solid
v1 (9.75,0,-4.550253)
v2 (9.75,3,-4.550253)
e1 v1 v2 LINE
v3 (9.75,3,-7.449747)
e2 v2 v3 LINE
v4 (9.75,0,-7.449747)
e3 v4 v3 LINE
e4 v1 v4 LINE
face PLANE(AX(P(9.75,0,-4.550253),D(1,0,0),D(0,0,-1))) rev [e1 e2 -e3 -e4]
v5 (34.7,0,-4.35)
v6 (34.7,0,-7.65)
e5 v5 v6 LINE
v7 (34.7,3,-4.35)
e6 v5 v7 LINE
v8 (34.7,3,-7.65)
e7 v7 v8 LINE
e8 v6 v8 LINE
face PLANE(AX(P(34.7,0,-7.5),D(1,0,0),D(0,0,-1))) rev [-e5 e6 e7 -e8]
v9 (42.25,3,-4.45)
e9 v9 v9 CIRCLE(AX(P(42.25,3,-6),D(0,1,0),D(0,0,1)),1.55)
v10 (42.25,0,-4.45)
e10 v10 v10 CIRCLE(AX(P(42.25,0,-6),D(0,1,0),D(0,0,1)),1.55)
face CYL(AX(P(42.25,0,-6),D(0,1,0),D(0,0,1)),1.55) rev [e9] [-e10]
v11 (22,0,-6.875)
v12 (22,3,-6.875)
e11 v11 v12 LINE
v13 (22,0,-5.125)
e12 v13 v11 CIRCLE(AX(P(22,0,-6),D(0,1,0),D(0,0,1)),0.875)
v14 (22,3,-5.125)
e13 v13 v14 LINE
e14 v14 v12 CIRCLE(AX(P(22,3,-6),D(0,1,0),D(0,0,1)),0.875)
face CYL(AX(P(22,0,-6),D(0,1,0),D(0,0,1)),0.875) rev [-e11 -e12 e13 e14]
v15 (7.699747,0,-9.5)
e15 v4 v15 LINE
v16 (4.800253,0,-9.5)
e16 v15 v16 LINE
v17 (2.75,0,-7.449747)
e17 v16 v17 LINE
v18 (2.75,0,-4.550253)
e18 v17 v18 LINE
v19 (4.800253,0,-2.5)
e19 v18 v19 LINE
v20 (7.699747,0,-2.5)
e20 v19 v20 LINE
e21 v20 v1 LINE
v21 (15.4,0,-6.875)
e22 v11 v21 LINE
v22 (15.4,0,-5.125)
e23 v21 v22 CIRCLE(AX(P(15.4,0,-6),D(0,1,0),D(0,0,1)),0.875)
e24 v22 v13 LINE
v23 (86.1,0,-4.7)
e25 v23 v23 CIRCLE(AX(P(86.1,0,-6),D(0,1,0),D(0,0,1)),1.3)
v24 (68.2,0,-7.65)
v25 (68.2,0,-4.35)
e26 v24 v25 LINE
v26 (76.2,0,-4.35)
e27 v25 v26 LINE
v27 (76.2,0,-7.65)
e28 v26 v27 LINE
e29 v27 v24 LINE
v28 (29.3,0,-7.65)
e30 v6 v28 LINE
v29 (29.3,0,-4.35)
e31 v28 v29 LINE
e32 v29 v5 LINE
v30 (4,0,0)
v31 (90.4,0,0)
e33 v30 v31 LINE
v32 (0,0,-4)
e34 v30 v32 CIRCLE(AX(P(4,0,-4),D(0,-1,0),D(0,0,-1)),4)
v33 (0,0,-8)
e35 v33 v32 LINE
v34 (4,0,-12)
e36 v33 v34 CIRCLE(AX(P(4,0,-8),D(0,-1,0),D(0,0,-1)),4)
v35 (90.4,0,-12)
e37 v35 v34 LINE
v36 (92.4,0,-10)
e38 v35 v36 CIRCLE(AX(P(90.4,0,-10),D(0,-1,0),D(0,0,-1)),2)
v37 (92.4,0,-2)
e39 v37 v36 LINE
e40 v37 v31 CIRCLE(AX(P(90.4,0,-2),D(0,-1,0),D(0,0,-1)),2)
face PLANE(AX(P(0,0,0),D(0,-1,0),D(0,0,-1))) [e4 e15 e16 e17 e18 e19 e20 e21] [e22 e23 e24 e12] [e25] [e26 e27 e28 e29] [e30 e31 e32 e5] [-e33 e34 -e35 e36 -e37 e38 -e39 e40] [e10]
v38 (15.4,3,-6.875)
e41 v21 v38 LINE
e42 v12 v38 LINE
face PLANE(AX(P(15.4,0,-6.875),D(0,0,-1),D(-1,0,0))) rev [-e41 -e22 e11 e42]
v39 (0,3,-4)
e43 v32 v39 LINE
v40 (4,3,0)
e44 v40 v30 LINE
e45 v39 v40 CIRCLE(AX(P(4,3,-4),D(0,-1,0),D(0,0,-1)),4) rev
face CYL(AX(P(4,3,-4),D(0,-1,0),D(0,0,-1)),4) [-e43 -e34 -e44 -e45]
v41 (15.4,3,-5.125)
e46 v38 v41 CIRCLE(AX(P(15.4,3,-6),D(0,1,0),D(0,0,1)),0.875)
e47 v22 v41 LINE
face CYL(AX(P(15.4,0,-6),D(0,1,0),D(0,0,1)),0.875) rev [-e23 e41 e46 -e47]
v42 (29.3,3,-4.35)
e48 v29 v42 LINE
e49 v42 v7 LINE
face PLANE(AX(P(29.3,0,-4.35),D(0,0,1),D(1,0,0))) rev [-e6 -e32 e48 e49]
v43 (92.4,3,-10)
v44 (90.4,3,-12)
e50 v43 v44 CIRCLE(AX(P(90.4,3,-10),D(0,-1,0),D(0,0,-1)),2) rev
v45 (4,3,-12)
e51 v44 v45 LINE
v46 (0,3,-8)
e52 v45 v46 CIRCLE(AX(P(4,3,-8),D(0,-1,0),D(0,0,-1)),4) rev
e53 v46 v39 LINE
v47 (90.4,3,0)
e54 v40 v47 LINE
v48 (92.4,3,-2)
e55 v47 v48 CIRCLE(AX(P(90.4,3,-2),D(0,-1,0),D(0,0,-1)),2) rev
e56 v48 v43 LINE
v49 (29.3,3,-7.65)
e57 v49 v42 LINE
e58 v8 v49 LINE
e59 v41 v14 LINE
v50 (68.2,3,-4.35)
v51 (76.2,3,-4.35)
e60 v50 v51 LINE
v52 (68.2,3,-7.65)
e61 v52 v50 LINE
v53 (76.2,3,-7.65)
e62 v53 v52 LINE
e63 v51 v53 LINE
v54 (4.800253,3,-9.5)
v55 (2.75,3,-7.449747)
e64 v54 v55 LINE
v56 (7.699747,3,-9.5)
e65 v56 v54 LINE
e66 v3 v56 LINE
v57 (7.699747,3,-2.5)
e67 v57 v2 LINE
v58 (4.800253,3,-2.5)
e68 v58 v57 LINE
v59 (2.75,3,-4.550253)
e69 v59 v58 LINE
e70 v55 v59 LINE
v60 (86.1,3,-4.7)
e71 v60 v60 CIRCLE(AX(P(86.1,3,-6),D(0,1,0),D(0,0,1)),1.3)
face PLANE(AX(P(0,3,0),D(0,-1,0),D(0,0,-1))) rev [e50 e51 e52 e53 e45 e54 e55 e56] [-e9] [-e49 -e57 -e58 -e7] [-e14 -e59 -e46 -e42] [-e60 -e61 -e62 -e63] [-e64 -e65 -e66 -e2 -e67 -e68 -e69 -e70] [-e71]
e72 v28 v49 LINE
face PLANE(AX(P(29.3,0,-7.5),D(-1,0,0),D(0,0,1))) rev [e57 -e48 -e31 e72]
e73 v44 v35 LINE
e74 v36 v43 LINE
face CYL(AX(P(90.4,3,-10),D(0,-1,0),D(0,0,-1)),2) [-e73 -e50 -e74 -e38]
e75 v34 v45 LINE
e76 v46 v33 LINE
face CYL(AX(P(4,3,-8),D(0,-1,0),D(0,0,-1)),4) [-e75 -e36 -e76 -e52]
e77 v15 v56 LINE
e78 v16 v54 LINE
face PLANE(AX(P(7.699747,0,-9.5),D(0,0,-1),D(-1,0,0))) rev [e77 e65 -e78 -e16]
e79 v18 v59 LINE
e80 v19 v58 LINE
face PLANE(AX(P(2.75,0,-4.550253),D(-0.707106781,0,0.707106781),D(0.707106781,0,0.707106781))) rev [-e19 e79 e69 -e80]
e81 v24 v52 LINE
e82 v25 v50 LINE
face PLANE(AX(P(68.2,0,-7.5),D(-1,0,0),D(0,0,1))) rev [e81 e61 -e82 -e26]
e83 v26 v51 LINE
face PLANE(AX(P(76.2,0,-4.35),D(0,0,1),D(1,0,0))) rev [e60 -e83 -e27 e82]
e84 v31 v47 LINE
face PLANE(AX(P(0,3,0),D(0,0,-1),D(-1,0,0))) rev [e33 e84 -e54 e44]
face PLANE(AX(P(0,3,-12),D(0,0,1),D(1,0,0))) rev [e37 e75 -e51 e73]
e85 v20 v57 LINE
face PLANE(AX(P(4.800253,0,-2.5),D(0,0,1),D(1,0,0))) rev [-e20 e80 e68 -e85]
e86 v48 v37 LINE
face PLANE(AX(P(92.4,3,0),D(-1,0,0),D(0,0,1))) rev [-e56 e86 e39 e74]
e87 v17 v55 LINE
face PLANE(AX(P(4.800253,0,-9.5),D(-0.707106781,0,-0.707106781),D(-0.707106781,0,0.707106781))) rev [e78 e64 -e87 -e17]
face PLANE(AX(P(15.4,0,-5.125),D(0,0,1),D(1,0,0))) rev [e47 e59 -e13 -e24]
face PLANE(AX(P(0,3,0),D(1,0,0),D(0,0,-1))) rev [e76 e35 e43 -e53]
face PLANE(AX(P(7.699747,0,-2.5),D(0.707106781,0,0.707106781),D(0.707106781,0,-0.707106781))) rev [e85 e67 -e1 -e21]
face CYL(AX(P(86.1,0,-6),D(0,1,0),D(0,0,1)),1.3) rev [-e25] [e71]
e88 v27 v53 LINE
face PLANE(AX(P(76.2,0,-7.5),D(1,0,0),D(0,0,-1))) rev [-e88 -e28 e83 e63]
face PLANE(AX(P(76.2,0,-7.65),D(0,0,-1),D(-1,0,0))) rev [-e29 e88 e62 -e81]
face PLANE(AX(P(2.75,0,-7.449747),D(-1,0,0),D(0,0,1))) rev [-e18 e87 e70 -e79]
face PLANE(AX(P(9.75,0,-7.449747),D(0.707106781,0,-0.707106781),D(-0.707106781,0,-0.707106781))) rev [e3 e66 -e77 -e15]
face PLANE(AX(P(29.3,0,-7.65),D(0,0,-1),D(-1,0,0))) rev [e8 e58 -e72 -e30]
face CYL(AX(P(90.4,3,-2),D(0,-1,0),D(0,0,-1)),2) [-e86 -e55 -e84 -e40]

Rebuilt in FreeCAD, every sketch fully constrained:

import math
import FreeCAD as App
import Part
import Sketcher
from FreeCAD import Vector
Q = App.Units.Quantity


def edges_at(feature, points):
    """Names of the edges that pass closest to the given points."""
    edges = feature.Shape.Edges
    near = lambda p: min(range(len(edges)), key=lambda i: edges[i].distToShape(Part.Vertex(*p))[0])
    return sorted({f"Edge{near(p) + 1}" for p in points})

doc = App.newDocument("Part")
body = doc.addObject("PartDesign::Body", "Body")

# Sketch on XZ plane
sketch1 = body.newObject("Sketcher::SketchObject", "Sketch")
sketch1.AttachmentSupport = (doc.getObject("XZ_Plane"), [""])
sketch1.MapMode = "FlatFace"
sketch1.addGeometry(Part.LineSegment(Vector(0, -12, 0), Vector(0, 0, 0)), False)
sketch1.addGeometry(Part.LineSegment(Vector(0, 0, 0), Vector(92, 0, 0)), False)
sketch1.addGeometry(Part.LineSegment(Vector(92, 0, 0), Vector(92, -12, 0)), False)
sketch1.addGeometry(Part.LineSegment(Vector(92, -12, 0), Vector(0, -12, 0)), False)
sketch1.addConstraint(Sketcher.Constraint("Coincident", 0, 2, 1, 1))
sketch1.addConstraint(Sketcher.Constraint("Coincident", 1, 2, 2, 1))
sketch1.addConstraint(Sketcher.Constraint("Coincident", 2, 2, 3, 1))
sketch1.addConstraint(Sketcher.Constraint("Coincident", 3, 2, 0, 1))
sketch1.addConstraint(Sketcher.Constraint("Vertical", 0))
sketch1.addConstraint(Sketcher.Constraint("Horizontal", 1))
sketch1.addConstraint(Sketcher.Constraint("Vertical", 2))
sketch1.addConstraint(Sketcher.Constraint("Horizontal", 3))
sketch1.addConstraint(Sketcher.Constraint("Coincident", 0, 2, -1, 1))
sketch1.addConstraint(Sketcher.Constraint("DistanceY", 0, 1, 0, 2, Q("12 mm")))
sketch1.addConstraint(Sketcher.Constraint("DistanceX", 1, 1, 1, 2, Q("92.4 mm")))
pad1 = body.newObject("PartDesign::Pad", "Pad")
pad1.Profile = sketch1
pad1.Length = 3
pad1.Reversed = True
doc.recompute()

fillet = body.newObject("PartDesign::Fillet", "Fillet")
fillet.Base = (pad1, edges_at(pad1, [(0, 1.5, -12), (0, 1.5, 0)]))
fillet.Radius = 4
doc.recompute()

fillet2 = body.newObject("PartDesign::Fillet", "Fillet001")
fillet2.Base = (fillet, edges_at(fillet, [(92.4, 1.5, -12), (92.4, 1.5, 0)]))
fillet2.Radius = 2

# Sketch on XZ plane
sketch2 = body.newObject("Sketcher::SketchObject", "Sketch001")
sketch2.AttachmentSupport = (doc.getObject("XZ_Plane"), [""])
sketch2.MapMode = "FlatFace"
sketch2.AttachmentOffset = App.Placement(Vector(0, 0, -3), App.Rotation())
sketch2.addGeometry(Part.Circle(Vector(42.2, -6, 0), Vector(0, 0, 1), 1.6), False)
sketch2.addGeometry(Part.Circle(Vector(86.1, -6, 0), Vector(0, 0, 1), 1.3), False)
sketch2.addGeometry(Part.LineSegment(Vector(9.8, -7.4, 0), Vector(7.7, -9.5, 0)), False)
sketch2.addGeometry(Part.LineSegment(Vector(7.7, -9.5, 0), Vector(4.8, -9.5, 0)), False)
sketch2.addGeometry(Part.LineSegment(Vector(4.8, -9.5, 0), Vector(2.8, -7.4, 0)), False)
sketch2.addGeometry(Part.LineSegment(Vector(2.8, -7.4, 0), Vector(2.8, -4.6, 0)), False)
sketch2.addGeometry(Part.LineSegment(Vector(2.8, -4.6, 0), Vector(4.8, -2.5, 0)), False)
sketch2.addGeometry(Part.LineSegment(Vector(4.8, -2.5, 0), Vector(7.7, -2.5, 0)), False)
sketch2.addGeometry(Part.LineSegment(Vector(7.7, -2.5, 0), Vector(9.8, -4.6, 0)), False)
sketch2.addGeometry(Part.LineSegment(Vector(9.8, -4.6, 0), Vector(9.8, -7.4, 0)), False)
sketch2.addGeometry(Part.LineSegment(Vector(22, -6.9, 0), Vector(15.4, -6.9, 0)), False)
sketch2.addGeometry(Part.ArcOfCircle(Part.Circle(Vector(15.4, -6, 0), Vector(0, 0, 1), 0.9), math.radians(90), math.radians(270)), False)
sketch2.addGeometry(Part.LineSegment(Vector(15.4, -5.1, 0), Vector(22, -5.1, 0)), False)
sketch2.addGeometry(Part.ArcOfCircle(Part.Circle(Vector(22, -6, 0), Vector(0, 0, 1), 0.9), math.radians(-90), math.radians(90)), False)
sketch2.addGeometry(Part.LineSegment(Vector(29.3, -7.5, 0), Vector(29.3, -4.5, 0)), False)
sketch2.addGeometry(Part.LineSegment(Vector(29.3, -4.5, 0), Vector(34.7, -4.5, 0)), False)
sketch2.addGeometry(Part.LineSegment(Vector(34.7, -4.5, 0), Vector(34.7, -7.5, 0)), False)
sketch2.addGeometry(Part.LineSegment(Vector(34.7, -7.5, 0), Vector(29.3, -7.5, 0)), False)
sketch2.addGeometry(Part.LineSegment(Vector(68.2, -7.5, 0), Vector(68.2, -4.5, 0)), False)
sketch2.addGeometry(Part.LineSegment(Vector(68.2, -4.5, 0), Vector(76.2, -4.5, 0)), False)
sketch2.addGeometry(Part.LineSegment(Vector(76.2, -4.5, 0), Vector(76.2, -7.5, 0)), False)
sketch2.addGeometry(Part.LineSegment(Vector(76.2, -7.5, 0), Vector(68.2, -7.5, 0)), False)
sketch2.addConstraint(Sketcher.Constraint("Coincident", 2, 2, 3, 1))
sketch2.addConstraint(Sketcher.Constraint("Coincident", 3, 2, 4, 1))
sketch2.addConstraint(Sketcher.Constraint("Coincident", 4, 2, 5, 1))
sketch2.addConstraint(Sketcher.Constraint("Coincident", 5, 2, 6, 1))
sketch2.addConstraint(Sketcher.Constraint("Coincident", 6, 2, 7, 1))
sketch2.addConstraint(Sketcher.Constraint("Coincident", 7, 2, 8, 1))
sketch2.addConstraint(Sketcher.Constraint("Coincident", 8, 2, 9, 1))
sketch2.addConstraint(Sketcher.Constraint("Coincident", 9, 2, 2, 1))
sketch2.addConstraint(Sketcher.Constraint("Tangent", 10, 2, 11, 2))
sketch2.addConstraint(Sketcher.Constraint("Tangent", 11, 1, 12, 1))
sketch2.addConstraint(Sketcher.Constraint("Tangent", 12, 2, 13, 2))
sketch2.addConstraint(Sketcher.Constraint("Tangent", 13, 1, 10, 1))
sketch2.addConstraint(Sketcher.Constraint("Coincident", 14, 2, 15, 1))
sketch2.addConstraint(Sketcher.Constraint("Coincident", 15, 2, 16, 1))
sketch2.addConstraint(Sketcher.Constraint("Coincident", 16, 2, 17, 1))
sketch2.addConstraint(Sketcher.Constraint("Coincident", 17, 2, 14, 1))
sketch2.addConstraint(Sketcher.Constraint("Coincident", 18, 2, 19, 1))
sketch2.addConstraint(Sketcher.Constraint("Coincident", 19, 2, 20, 1))
sketch2.addConstraint(Sketcher.Constraint("Coincident", 20, 2, 21, 1))
sketch2.addConstraint(Sketcher.Constraint("Coincident", 21, 2, 18, 1))
sketch2.addConstraint(Sketcher.Constraint("Horizontal", 3))
sketch2.addConstraint(Sketcher.Constraint("Vertical", 5))
sketch2.addConstraint(Sketcher.Constraint("Horizontal", 7))
sketch2.addConstraint(Sketcher.Constraint("Vertical", 9))
sketch2.addConstraint(Sketcher.Constraint("Horizontal", 10))
sketch2.addConstraint(Sketcher.Constraint("Horizontal", 12))
sketch2.addConstraint(Sketcher.Constraint("Vertical", 14))
sketch2.addConstraint(Sketcher.Constraint("Horizontal", 15))
sketch2.addConstraint(Sketcher.Constraint("Vertical", 16))
sketch2.addConstraint(Sketcher.Constraint("Horizontal", 17))
sketch2.addConstraint(Sketcher.Constraint("Vertical", 18))
sketch2.addConstraint(Sketcher.Constraint("Horizontal", 19))
sketch2.addConstraint(Sketcher.Constraint("Vertical", 20))
sketch2.addConstraint(Sketcher.Constraint("Horizontal", 21))
sketch2.addConstraint(Sketcher.Constraint("Perpendicular", 2, 4))
sketch2.addConstraint(Sketcher.Constraint("Perpendicular", 4, 6))
sketch2.addConstraint(Sketcher.Constraint("Perpendicular", 6, 8))
sketch2.addConstraint(Sketcher.Constraint("Horizontal", 0, 3, 1, 3))
sketch2.addConstraint(Sketcher.Constraint("Horizontal", 1, 3, 11, 3))
sketch2.addConstraint(Sketcher.Constraint("Horizontal", 5, 2, 8, 2))
sketch2.addConstraint(Sketcher.Constraint("Horizontal", 4, 2, 9, 2))
sketch2.addConstraint(Sketcher.Constraint("Horizontal", 15, 2, 18, 2))
sketch2.addConstraint(Sketcher.Constraint("Horizontal", 17, 2, 20, 2))
sketch2.addConstraint(Sketcher.Constraint("Vertical", 3, 2, 6, 2))
sketch2.addConstraint(Sketcher.Constraint("Vertical", 2, 2, 7, 2))
sketch2.addConstraint(Sketcher.Constraint("Equal", 7, 5))
sketch2.addConstraint(Sketcher.Constraint("Diameter", 0, Q("3.1 mm")))
sketch2.addConstraint(Sketcher.Constraint("Diameter", 1, Q("2.6 mm")))
sketch2.addConstraint(Sketcher.Constraint("DistanceX", 19, 1, 19, 2, Q("8 mm")))
sketch2.addConstraint(Sketcher.Constraint("DistanceY", 14, 1, 14, 2, Q("3 mm")))
sketch2.addConstraint(Sketcher.Constraint("DistanceX", 10, 2, 10, 1, Q("6.6 mm")))
sketch2.addConstraint(Sketcher.Constraint("DistanceX", 15, 1, 15, 2, Q("5.4 mm")))
sketch2.addConstraint(Sketcher.Constraint("DistanceY", 0, 3, -1, 1, Q("6 mm")))
sketch2.addConstraint(Sketcher.Constraint("DistanceX", -1, 1, 13, 3, Q("22 mm")))
sketch2.addConstraint(Sketcher.Constraint("Radius", 11, Q("0.875 mm")))
sketch2.addConstraint(Sketcher.Constraint("DistanceY", 3, 2, 6, 2, Q("7 mm")))
sketch2.addConstraint(Sketcher.Constraint("DistanceX", -1, 1, 1, 3, Q("86.1 mm")))
sketch2.addConstraint(Sketcher.Constraint("DistanceY", 2, 2, -1, 1, Q("9.5 mm")))
sketch2.addConstraint(Sketcher.Constraint("DistanceX", -1, 1, 14, 2, Q("29.3 mm")))
sketch2.addConstraint(Sketcher.Constraint("DistanceY", 14, 2, -1, 1, Q("4.5 mm")))
sketch2.addConstraint(Sketcher.Constraint("DistanceX", -1, 1, 18, 2, Q("68.2 mm")))
sketch2.addConstraint(Sketcher.Constraint("DistanceX", 4, 2, 0, 3, Q("39.5 mm")))
sketch2.addConstraint(Sketcher.Constraint("DistanceX", -1, 1, 0, 3, Q("42.25 mm")))
sketch2.addConstraint(Sketcher.Constraint("DistanceX", 3, 2, 3, 1, Q("2.899495 mm")))
pocket1 = body.newObject("PartDesign::Pocket", "Pocket")
pocket1.Profile = sketch2
pocket1.Type = "ThroughAll"
pocket1.Reversed = True

# Sketch on XZ plane
sketch3 = body.newObject("Sketcher::SketchObject", "Sketch002")
sketch3.AttachmentSupport = (doc.getObject("XZ_Plane"), [""])
sketch3.MapMode = "FlatFace"
sketch3.AttachmentOffset = App.Placement(Vector(0, 0, -3), App.Rotation())
sketch3.addGeometry(Part.LineSegment(Vector(29.3, -7.65, 0), Vector(29.3, -7.5, 0)), False)
sketch3.addGeometry(Part.LineSegment(Vector(29.3, -7.5, 0), Vector(34.7, -7.5, 0)), False)
sketch3.addGeometry(Part.LineSegment(Vector(34.7, -7.5, 0), Vector(34.7, -7.65, 0)), False)
sketch3.addGeometry(Part.LineSegment(Vector(34.7, -7.65, 0), Vector(29.3, -7.65, 0)), False)
sketch3.addGeometry(Part.LineSegment(Vector(29.3, -4.5, 0), Vector(29.3, -4.35, 0)), False)
sketch3.addGeometry(Part.LineSegment(Vector(29.3, -4.35, 0), Vector(34.7, -4.35, 0)), False)
sketch3.addGeometry(Part.LineSegment(Vector(34.7, -4.35, 0), Vector(34.7, -4.5, 0)), False)
sketch3.addGeometry(Part.LineSegment(Vector(34.7, -4.5, 0), Vector(29.3, -4.5, 0)), False)
sketch3.addGeometry(Part.LineSegment(Vector(68.2, -7.65, 0), Vector(68.2, -7.5, 0)), False)
sketch3.addGeometry(Part.LineSegment(Vector(68.2, -7.5, 0), Vector(76.2, -7.5, 0)), False)
sketch3.addGeometry(Part.LineSegment(Vector(76.2, -7.5, 0), Vector(76.2, -7.65, 0)), False)
sketch3.addGeometry(Part.LineSegment(Vector(76.2, -7.65, 0), Vector(68.2, -7.65, 0)), False)
sketch3.addGeometry(Part.LineSegment(Vector(68.2, -4.5, 0), Vector(68.2, -4.35, 0)), False)
sketch3.addGeometry(Part.LineSegment(Vector(68.2, -4.35, 0), Vector(76.2, -4.35, 0)), False)
sketch3.addGeometry(Part.LineSegment(Vector(76.2, -4.35, 0), Vector(76.2, -4.5, 0)), False)
sketch3.addGeometry(Part.LineSegment(Vector(76.2, -4.5, 0), Vector(68.2, -4.5, 0)), False)
sketch3.addConstraint(Sketcher.Constraint("Coincident", 0, 2, 1, 1))
sketch3.addConstraint(Sketcher.Constraint("Coincident", 1, 2, 2, 1))
sketch3.addConstraint(Sketcher.Constraint("Coincident", 2, 2, 3, 1))
sketch3.addConstraint(Sketcher.Constraint("Coincident", 3, 2, 0, 1))
sketch3.addConstraint(Sketcher.Constraint("Coincident", 4, 2, 5, 1))
sketch3.addConstraint(Sketcher.Constraint("Coincident", 5, 2, 6, 1))
sketch3.addConstraint(Sketcher.Constraint("Coincident", 6, 2, 7, 1))
sketch3.addConstraint(Sketcher.Constraint("Coincident", 7, 2, 4, 1))
sketch3.addConstraint(Sketcher.Constraint("Coincident", 8, 2, 9, 1))
sketch3.addConstraint(Sketcher.Constraint("Coincident", 9, 2, 10, 1))
sketch3.addConstraint(Sketcher.Constraint("Coincident", 10, 2, 11, 1))
sketch3.addConstraint(Sketcher.Constraint("Coincident", 11, 2, 8, 1))
sketch3.addConstraint(Sketcher.Constraint("Coincident", 12, 2, 13, 1))
sketch3.addConstraint(Sketcher.Constraint("Coincident", 13, 2, 14, 1))
sketch3.addConstraint(Sketcher.Constraint("Coincident", 14, 2, 15, 1))
sketch3.addConstraint(Sketcher.Constraint("Coincident", 15, 2, 12, 1))
sketch3.addConstraint(Sketcher.Constraint("Vertical", 0))
sketch3.addConstraint(Sketcher.Constraint("Horizontal", 1))
sketch3.addConstraint(Sketcher.Constraint("Vertical", 2))
sketch3.addConstraint(Sketcher.Constraint("Horizontal", 3))
sketch3.addConstraint(Sketcher.Constraint("Vertical", 4))
sketch3.addConstraint(Sketcher.Constraint("Horizontal", 5))
sketch3.addConstraint(Sketcher.Constraint("Vertical", 6))
sketch3.addConstraint(Sketcher.Constraint("Horizontal", 7))
sketch3.addConstraint(Sketcher.Constraint("Vertical", 8))
sketch3.addConstraint(Sketcher.Constraint("Horizontal", 9))
sketch3.addConstraint(Sketcher.Constraint("Vertical", 10))
sketch3.addConstraint(Sketcher.Constraint("Horizontal", 11))
sketch3.addConstraint(Sketcher.Constraint("Vertical", 12))
sketch3.addConstraint(Sketcher.Constraint("Horizontal", 13))
sketch3.addConstraint(Sketcher.Constraint("Vertical", 14))
sketch3.addConstraint(Sketcher.Constraint("Horizontal", 15))
sketch3.addConstraint(Sketcher.Constraint("Horizontal", 1, 2, 8, 2))
sketch3.addConstraint(Sketcher.Constraint("Horizontal", 3, 2, 10, 2))
sketch3.addConstraint(Sketcher.Constraint("Horizontal", 5, 2, 12, 2))
sketch3.addConstraint(Sketcher.Constraint("Horizontal", 7, 2, 14, 2))
sketch3.addConstraint(Sketcher.Constraint("Vertical", 3, 2, 4, 2))
sketch3.addConstraint(Sketcher.Constraint("Vertical", 2, 2, 5, 2))
sketch3.addConstraint(Sketcher.Constraint("Vertical", 11, 2, 12, 2))
sketch3.addConstraint(Sketcher.Constraint("Vertical", 10, 2, 13, 2))
sketch3.addConstraint(Sketcher.Constraint("Equal", 2, 4))
sketch3.addConstraint(Sketcher.Constraint("DistanceX", 9, 1, 9, 2, Q("8 mm")))
sketch3.addConstraint(Sketcher.Constraint("DistanceX", 1, 1, 1, 2, Q("5.4 mm")))
sketch3.addConstraint(Sketcher.Constraint("DistanceY", 1, 2, 6, 2, Q("3 mm")))
sketch3.addConstraint(Sketcher.Constraint("DistanceY", 0, 1, 0, 2, Q("0.15 mm")))
sketch3.addConstraint(Sketcher.Constraint("DistanceX", -1, 1, 0, 2, Q("29.3 mm")))
sketch3.addConstraint(Sketcher.Constraint("DistanceY", 0, 2, -1, 1, Q("7.5 mm")))
sketch3.addConstraint(Sketcher.Constraint("DistanceX", -1, 1, 8, 2, Q("68.2 mm")))
pocket2 = body.newObject("PartDesign::Pocket", "Pocket001")
pocket2.Profile = sketch3
pocket2.Type = "ThroughAll"
pocket2.Reversed = True

doc.recompute()
